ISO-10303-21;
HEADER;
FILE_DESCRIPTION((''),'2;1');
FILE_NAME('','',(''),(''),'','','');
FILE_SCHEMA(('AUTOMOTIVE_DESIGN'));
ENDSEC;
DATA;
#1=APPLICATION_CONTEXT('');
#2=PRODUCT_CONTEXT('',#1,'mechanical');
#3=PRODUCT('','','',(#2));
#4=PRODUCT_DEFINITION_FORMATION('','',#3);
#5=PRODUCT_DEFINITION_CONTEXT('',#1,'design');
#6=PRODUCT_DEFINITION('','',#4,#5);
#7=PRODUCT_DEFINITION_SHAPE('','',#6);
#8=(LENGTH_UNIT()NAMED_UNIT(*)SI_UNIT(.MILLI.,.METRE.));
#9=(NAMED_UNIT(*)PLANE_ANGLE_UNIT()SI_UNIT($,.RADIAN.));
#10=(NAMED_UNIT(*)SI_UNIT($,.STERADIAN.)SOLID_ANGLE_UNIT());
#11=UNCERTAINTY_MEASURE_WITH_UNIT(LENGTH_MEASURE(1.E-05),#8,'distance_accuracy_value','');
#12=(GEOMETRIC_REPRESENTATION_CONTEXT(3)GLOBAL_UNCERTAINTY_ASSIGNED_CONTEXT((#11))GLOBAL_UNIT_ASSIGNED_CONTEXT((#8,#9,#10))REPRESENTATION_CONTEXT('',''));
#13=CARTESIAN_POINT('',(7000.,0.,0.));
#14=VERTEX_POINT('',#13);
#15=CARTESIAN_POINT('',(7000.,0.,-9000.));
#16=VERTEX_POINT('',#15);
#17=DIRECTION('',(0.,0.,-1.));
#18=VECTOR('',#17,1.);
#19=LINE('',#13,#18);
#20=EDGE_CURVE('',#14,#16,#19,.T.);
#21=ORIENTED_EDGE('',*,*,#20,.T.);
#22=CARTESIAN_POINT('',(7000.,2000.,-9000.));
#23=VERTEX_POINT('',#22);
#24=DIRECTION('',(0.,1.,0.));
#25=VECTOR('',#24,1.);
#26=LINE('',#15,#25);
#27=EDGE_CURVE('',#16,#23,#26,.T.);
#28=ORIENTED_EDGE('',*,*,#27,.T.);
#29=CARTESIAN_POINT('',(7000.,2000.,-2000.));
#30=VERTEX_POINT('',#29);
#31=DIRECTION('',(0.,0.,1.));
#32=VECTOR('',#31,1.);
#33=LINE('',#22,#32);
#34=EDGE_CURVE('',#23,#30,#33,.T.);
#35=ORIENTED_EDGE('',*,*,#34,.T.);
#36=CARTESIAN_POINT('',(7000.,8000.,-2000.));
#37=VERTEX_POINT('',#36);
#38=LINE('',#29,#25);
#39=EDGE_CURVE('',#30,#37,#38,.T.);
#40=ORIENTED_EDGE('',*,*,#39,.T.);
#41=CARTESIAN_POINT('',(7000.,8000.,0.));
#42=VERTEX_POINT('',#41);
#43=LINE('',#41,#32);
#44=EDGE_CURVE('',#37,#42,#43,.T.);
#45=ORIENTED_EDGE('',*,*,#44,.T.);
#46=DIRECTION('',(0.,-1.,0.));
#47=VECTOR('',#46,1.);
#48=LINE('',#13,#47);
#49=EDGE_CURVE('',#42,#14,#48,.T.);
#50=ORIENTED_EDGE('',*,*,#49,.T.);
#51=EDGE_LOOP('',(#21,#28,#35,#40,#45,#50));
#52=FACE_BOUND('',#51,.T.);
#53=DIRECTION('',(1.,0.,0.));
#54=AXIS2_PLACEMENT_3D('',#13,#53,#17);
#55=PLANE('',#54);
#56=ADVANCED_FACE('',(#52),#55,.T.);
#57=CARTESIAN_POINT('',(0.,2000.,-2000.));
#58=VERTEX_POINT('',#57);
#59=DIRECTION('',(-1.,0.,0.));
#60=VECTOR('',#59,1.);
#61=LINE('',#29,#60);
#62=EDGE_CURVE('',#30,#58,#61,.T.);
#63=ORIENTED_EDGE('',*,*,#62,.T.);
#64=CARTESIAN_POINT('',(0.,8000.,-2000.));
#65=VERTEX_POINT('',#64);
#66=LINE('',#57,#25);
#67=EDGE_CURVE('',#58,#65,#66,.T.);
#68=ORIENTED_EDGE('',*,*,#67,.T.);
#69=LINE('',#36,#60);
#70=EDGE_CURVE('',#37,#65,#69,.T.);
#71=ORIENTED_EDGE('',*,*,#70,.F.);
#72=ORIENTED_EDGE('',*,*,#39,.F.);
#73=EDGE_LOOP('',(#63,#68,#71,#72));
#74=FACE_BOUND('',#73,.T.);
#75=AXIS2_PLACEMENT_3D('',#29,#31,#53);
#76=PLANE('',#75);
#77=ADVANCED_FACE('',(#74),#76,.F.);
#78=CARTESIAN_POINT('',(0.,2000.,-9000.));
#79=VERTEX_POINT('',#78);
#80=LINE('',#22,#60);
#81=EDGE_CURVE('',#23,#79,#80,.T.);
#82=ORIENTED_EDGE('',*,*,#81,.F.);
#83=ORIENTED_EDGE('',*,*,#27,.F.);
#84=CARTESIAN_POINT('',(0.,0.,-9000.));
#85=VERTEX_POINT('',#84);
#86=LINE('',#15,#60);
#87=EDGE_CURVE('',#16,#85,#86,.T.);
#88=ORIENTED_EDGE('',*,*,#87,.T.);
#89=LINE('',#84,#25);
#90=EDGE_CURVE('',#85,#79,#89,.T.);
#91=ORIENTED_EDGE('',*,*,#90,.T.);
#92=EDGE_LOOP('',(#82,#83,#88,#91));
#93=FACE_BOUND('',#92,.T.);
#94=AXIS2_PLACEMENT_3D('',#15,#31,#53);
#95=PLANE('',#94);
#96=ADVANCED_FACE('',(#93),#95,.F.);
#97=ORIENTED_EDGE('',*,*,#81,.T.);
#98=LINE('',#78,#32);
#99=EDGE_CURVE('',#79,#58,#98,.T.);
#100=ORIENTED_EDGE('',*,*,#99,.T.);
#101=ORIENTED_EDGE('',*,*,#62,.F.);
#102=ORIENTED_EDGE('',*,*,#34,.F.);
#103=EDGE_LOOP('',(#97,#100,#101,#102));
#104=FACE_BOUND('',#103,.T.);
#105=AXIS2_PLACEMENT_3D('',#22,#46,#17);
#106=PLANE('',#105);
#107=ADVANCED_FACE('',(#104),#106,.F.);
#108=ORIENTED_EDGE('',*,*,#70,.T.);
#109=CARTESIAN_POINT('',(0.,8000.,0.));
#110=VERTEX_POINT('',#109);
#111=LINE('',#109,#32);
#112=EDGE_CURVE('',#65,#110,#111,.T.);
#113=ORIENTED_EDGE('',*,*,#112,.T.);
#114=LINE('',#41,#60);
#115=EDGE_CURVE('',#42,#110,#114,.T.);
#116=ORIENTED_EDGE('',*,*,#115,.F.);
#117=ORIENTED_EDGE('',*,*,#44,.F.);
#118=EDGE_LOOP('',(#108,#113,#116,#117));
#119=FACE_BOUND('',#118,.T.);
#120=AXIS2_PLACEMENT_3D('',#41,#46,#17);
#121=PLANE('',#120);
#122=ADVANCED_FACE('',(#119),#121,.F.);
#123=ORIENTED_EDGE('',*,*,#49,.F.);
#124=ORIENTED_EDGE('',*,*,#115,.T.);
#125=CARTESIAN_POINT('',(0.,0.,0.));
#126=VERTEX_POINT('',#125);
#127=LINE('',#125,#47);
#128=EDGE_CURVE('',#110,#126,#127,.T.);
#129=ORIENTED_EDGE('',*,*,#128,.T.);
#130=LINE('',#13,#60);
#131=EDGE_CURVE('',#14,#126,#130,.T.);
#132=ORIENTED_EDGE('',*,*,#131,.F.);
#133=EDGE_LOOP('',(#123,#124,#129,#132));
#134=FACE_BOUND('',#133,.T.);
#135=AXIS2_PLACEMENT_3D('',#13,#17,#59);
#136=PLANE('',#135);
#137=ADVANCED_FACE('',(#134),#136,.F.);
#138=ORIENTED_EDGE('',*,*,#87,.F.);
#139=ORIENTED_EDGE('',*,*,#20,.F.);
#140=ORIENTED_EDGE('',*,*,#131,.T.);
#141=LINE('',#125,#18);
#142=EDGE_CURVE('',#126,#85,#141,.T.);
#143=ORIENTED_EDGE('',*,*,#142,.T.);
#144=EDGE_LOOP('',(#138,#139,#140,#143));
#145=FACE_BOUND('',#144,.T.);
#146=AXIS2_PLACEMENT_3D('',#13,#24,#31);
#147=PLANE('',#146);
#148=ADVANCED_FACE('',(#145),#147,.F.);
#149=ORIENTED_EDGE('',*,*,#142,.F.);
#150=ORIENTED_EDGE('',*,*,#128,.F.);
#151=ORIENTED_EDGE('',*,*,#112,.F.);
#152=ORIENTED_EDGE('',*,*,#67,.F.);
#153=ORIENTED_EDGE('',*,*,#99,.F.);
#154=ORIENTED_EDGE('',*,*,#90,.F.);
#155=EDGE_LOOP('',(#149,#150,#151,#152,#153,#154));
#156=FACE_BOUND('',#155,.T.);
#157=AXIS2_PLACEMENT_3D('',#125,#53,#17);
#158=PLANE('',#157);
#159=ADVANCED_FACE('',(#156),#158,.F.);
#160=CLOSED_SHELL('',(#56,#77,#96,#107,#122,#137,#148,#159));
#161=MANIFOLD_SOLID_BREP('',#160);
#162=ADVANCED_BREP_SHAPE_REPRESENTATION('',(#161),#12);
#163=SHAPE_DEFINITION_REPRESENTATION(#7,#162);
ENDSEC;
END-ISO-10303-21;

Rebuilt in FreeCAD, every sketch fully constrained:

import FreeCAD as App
import Part
import Sketcher

V = App.Vector
Q = App.Units.Quantity

doc = App.newDocument("Part")
params = doc.addObject("Spreadsheet::Sheet", "Params")
for row, (alias, value) in enumerate([
    ("sketch1_width", "8000 mm"),
    ("sketch1_width2", "2000 mm"),
    ("sketch1_height", "9000 mm"),
    ("pad1_length", "7000 mm"),
], start=1):
    params.set(f"A{row}", alias)
    params.set(f"B{row}", "=" + value)
    params.setAlias(f"B{row}", alias)

body = doc.addObject("PartDesign::Body", "Body")

# Sketch on YZ plane
sketch1 = doc.addObject("Sketcher::SketchObject", "Sketch")
body.addObject(sketch1)
sketch1.AttachmentSupport = (doc.YZ_Plane, [""])
sketch1.MapMode = "FlatFace"
sketch1.addGeometry([
    Part.LineSegment(V(8000, 0, 0), V(0, 0, 0)),  # 0
    Part.LineSegment(V(0, 0, 0), V(0, -9000, 0)),  # 1
    Part.LineSegment(V(0, -9000, 0), V(2000, -9000, 0)),  # 2
    Part.LineSegment(V(2000, -9000, 0), V(2000, -2000, 0)),  # 3
    Part.LineSegment(V(2000, -2000, 0), V(8000, -2000, 0)),  # 4
    Part.LineSegment(V(8000, -2000, 0), V(8000, 0, 0)),  # 5
], False)
sketch1.addConstraint([
    Sketcher.Constraint("Coincident", 0, 2, 1, 1),
    Sketcher.Constraint("Coincident", 1, 2, 2, 1),
    Sketcher.Constraint("Coincident", 2, 2, 3, 1),
    Sketcher.Constraint("Coincident", 3, 2, 4, 1),
    Sketcher.Constraint("Coincident", 4, 2, 5, 1),
    Sketcher.Constraint("Coincident", 5, 2, 0, 1),
    Sketcher.Constraint("Horizontal", 0),
    Sketcher.Constraint("Vertical", 1),
    Sketcher.Constraint("Horizontal", 2),
    Sketcher.Constraint("Vertical", 3),
    Sketcher.Constraint("Horizontal", 4),
    Sketcher.Constraint("Vertical", 5),
    Sketcher.Constraint("Coincident", 0, 2, -1, 1),
    Sketcher.Constraint("Equal", 2, 5),
    Sketcher.Constraint("DistanceX", 0, 2, 0, 1, Q("8000 mm")),
    Sketcher.Constraint("DistanceX", 2, 1, 2, 2, Q("2000 mm")),
    Sketcher.Constraint("DistanceY", 1, 2, 1, 1, Q("9000 mm")),
])
sketch1.setExpression("Constraints[14]", "Params.sketch1_width")
sketch1.setExpression("Constraints[15]", "Params.sketch1_width2")
sketch1.setExpression("Constraints[16]", "Params.sketch1_height")
pad1 = doc.addObject("PartDesign::Pad", "Pad")
body.addObject(pad1)
pad1.Profile = sketch1
pad1.setExpression("Length", "Params.pad1_length")

doc.recompute()
